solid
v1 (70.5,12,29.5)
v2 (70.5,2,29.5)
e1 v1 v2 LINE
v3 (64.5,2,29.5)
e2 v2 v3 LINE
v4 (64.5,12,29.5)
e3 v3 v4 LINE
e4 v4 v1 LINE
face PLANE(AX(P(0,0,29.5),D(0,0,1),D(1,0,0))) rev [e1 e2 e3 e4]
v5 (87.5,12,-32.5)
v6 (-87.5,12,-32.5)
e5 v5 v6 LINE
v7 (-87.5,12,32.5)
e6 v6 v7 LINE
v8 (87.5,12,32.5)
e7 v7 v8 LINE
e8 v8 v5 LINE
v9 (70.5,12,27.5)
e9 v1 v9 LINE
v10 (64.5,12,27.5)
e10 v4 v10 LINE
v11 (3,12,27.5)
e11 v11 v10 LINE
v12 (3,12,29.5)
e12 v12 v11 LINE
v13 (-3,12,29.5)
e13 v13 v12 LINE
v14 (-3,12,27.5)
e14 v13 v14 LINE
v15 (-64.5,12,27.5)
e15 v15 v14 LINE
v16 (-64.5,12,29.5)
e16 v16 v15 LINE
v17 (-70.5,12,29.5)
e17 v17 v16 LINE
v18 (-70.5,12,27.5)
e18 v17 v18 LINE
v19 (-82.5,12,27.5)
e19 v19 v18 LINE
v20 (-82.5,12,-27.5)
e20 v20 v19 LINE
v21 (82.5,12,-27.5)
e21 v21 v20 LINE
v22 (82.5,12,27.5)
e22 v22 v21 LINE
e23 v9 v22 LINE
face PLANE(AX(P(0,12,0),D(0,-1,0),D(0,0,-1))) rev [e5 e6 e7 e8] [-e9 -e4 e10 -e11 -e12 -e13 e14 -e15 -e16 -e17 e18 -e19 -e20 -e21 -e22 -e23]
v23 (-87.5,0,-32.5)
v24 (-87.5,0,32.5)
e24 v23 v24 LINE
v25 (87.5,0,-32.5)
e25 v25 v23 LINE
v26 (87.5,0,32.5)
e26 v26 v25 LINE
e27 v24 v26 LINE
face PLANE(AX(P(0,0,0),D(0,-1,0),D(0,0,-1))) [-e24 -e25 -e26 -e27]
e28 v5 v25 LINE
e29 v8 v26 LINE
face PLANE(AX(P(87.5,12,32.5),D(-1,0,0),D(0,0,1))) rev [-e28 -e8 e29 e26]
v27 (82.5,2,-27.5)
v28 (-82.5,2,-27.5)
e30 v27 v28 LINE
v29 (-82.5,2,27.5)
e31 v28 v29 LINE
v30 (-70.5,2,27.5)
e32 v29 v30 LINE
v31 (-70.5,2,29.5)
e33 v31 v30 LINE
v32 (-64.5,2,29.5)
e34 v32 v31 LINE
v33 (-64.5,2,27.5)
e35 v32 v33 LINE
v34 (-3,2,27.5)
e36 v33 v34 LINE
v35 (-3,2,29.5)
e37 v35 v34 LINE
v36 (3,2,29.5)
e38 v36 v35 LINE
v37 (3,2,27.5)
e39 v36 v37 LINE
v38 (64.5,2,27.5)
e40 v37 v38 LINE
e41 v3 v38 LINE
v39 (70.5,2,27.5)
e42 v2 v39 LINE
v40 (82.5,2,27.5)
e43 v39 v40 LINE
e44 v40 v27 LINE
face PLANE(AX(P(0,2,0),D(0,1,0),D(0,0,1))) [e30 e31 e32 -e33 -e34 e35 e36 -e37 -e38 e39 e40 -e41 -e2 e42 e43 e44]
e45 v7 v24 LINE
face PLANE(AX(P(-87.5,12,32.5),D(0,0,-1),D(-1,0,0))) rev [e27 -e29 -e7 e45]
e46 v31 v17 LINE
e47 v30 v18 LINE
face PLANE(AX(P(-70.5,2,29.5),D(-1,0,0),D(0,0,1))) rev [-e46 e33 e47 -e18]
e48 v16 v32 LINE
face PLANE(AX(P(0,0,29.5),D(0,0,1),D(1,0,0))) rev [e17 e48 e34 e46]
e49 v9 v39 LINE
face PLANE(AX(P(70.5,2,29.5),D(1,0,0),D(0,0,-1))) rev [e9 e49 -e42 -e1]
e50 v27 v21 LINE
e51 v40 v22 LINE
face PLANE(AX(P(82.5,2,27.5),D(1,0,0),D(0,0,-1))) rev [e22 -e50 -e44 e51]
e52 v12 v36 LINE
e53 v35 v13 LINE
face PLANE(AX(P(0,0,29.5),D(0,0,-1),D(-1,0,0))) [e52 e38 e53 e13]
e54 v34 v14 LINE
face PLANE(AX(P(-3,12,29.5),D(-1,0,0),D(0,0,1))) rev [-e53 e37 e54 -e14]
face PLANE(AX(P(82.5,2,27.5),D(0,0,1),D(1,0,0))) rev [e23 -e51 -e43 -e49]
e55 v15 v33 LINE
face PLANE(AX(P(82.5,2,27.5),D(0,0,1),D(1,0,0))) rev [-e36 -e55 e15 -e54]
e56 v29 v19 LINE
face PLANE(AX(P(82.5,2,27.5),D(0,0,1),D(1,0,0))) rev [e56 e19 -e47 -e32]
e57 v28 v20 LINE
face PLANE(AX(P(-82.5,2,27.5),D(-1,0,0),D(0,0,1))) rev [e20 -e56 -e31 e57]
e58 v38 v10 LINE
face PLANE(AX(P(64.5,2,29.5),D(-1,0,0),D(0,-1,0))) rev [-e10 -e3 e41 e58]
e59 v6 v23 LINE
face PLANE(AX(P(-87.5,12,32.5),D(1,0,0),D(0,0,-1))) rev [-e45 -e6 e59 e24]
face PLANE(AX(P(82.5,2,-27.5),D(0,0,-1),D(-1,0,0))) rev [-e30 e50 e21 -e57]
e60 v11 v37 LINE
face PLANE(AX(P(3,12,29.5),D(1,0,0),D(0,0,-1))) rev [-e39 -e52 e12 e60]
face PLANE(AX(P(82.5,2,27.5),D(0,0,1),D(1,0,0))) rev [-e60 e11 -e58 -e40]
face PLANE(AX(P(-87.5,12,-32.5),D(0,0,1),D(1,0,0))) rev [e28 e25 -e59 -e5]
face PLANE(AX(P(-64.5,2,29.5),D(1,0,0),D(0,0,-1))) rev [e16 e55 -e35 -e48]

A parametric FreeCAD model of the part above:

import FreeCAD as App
import Part
import Sketcher
Q = App.Units.Quantity


def add_polygon(sketch, points):
    """Adds a closed chain of lines whose ends are joined by coincident constraints."""
    first, n = sketch.GeometryCount, len(points)
    for a, b in zip(points, points[1:] + points[:1]):
        sketch.addGeometry(Part.LineSegment(App.Vector(*a, 0), App.Vector(*b, 0)), False)
    for i in range(n):
        sketch.addConstraint(Sketcher.Constraint("Coincident", first + i, 2, first + (i + 1) % n, 1))

doc = App.newDocument("Part")
params = doc.addObject("Spreadsheet::Sheet", "Params")
for row, (alias, value) in enumerate([
    ("sketch1_width", "175 mm"),
    ("sketch1_height", "65 mm"),
    ("pad1_length", "12 mm"),
    ("sketch2_width", "165 mm"),
    ("sketch2_height", "55 mm"),
    ("pocket1_length", "10 mm"),
    ("sketch3_width", "6 mm"),
    ("sketch3_height", "10 mm"),
    ("pocket2_length", "2 mm"),
    ("sketch4_width", "6 mm"),
    ("sketch4_height", "10 mm"),
    ("pocket3_length", "2 mm"),
    ("sketch5_width", "6 mm"),
    ("sketch5_height", "10 mm"),
    ("pocket4_length", "2 mm"),
], start=1):
    params.set(f"A{row}", alias)
    params.set(f"B{row}", "=" + value)
    params.setAlias(f"B{row}", alias)

body = doc.addObject("PartDesign::Body", "Body")

# Sketch on XZ plane
sketch1 = doc.addObject("Sketcher::SketchObject", "Sketch")
body.addObject(sketch1)
sketch1.AttachmentSupport = (doc.XZ_Plane, [""])
sketch1.MapMode = "FlatFace"
add_polygon(sketch1, [(-88, -32), (-88, 32), (88, 32), (88, -32)])  # lines 0-3
sketch1.addConstraint([
    Sketcher.Constraint("Vertical", 0),
    Sketcher.Constraint("Horizontal", 1),
    Sketcher.Constraint("Vertical", 2),
    Sketcher.Constraint("Horizontal", 3),
    Sketcher.Constraint("Symmetric", 0, 2, 2, 2, -1, 1),
    Sketcher.Constraint("DistanceX", 1, 1, 1, 2, Q("175 mm")),
    Sketcher.Constraint("DistanceY", 0, 1, 0, 2, Q("65 mm")),
])
sketch1.setExpression("Constraints[9]", "Params.sketch1_width")
sketch1.setExpression("Constraints[10]", "Params.sketch1_height")
pad1 = doc.addObject("PartDesign::Pad", "Pad")
body.addObject(pad1)
pad1.Profile = sketch1
pad1.setExpression("Length", "Params.pad1_length")
pad1.Reversed = True

# Sketch on XZ plane
sketch2 = doc.addObject("Sketcher::SketchObject", "Sketch001")
body.addObject(sketch2)
sketch2.AttachmentSupport = (doc.XZ_Plane, [""])
sketch2.MapMode = "FlatFace"
sketch2.AttachmentOffset = App.Placement(App.Vector(0, 0, -12), App.Rotation())
add_polygon(sketch2, [(-82, -28), (-82, 28), (82, 28), (82, -28)])  # lines 0-3
sketch2.addConstraint([
    Sketcher.Constraint("Vertical", 0),
    Sketcher.Constraint("Horizontal", 1),
    Sketcher.Constraint("Vertical", 2),
    Sketcher.Constraint("Horizontal", 3),
    Sketcher.Constraint("Symmetric", 0, 2, 2, 2, -1, 1),
    Sketcher.Constraint("DistanceX", 1, 1, 1, 2, Q("165 mm")),
    Sketcher.Constraint("DistanceY", 0, 1, 0, 2, Q("55 mm")),
])
sketch2.setExpression("Constraints[9]", "Params.sketch2_width")
sketch2.setExpression("Constraints[10]", "Params.sketch2_height")
pocket1 = doc.addObject("PartDesign::Pocket", "Pocket")
body.addObject(pocket1)
pocket1.Profile = sketch2
pocket1.setExpression("Length", "Params.pocket1_length")
pocket1.Reversed = True

# Sketch on XY plane
sketch3 = doc.addObject("Sketcher::SketchObject", "Sketch002")
body.addObject(sketch3)
sketch3.AttachmentSupport = (doc.XY_Plane, [""])
sketch3.MapMode = "FlatFace"
sketch3.AttachmentOffset = App.Placement(App.Vector(0, 0, 27.5), App.Rotation())
add_polygon(sketch3, [(3, 12), (3, 2), (-3, 2), (-3, 12)])  # lines 0-3
sketch3.addConstraint([
    Sketcher.Constraint("Vertical", 0),
    Sketcher.Constraint("Horizontal", 1),
    Sketcher.Constraint("Vertical", 2),
    Sketcher.Constraint("Horizontal", 3),
    Sketcher.Constraint("DistanceX", 1, 2, 1, 1, Q("6 mm")),
    Sketcher.Constraint("DistanceY", 0, 2, 0, 1, Q("10 mm")),
    Sketcher.Constraint("DistanceX", -1, 1, 0, 2, Q("3 mm")),
    Sketcher.Constraint("DistanceY", -1, 1, 0, 2, Q("2 mm")),
])
sketch3.setExpression("Constraints[8]", "Params.sketch3_width")
sketch3.setExpression("Constraints[9]", "Params.sketch3_height")
pocket2 = doc.addObject("PartDesign::Pocket", "Pocket001")
body.addObject(pocket2)
pocket2.Profile = sketch3
pocket2.setExpression("Length", "Params.pocket2_length")
pocket2.Reversed = True

# Sketch on XY plane
sketch4 = doc.addObject("Sketcher::SketchObject", "Sketch003")
body.addObject(sketch4)
sketch4.AttachmentSupport = (doc.XY_Plane, [""])
sketch4.MapMode = "FlatFace"
sketch4.AttachmentOffset = App.Placement(App.Vector(0, 0, 27.5), App.Rotation())
add_polygon(sketch4, [(70, 12), (70, 2), (64, 2), (64, 12)])  # lines 0-3
sketch4.addConstraint([
    Sketcher.Constraint("Vertical", 0),
    Sketcher.Constraint("Horizontal", 1),
    Sketcher.Constraint("Vertical", 2),
    Sketcher.Constraint("Horizontal", 3),
    Sketcher.Constraint("DistanceX", 1, 2, 1, 1, Q("6 mm")),
    Sketcher.Constraint("DistanceY", 0, 2, 0, 1, Q("10 mm")),
    Sketcher.Constraint("DistanceY", -1, 1, 0, 2, Q("2 mm")),
    Sketcher.Constraint("DistanceX", -1, 1, 0, 2, Q("70.5 mm")),
])
sketch4.setExpression("Constraints[8]", "Params.sketch4_width")
sketch4.setExpression("Constraints[9]", "Params.sketch4_height")
pocket3 = doc.addObject("PartDesign::Pocket", "Pocket002")
body.addObject(pocket3)
pocket3.Profile = sketch4
pocket3.setExpression("Length", "Params.pocket3_length")
pocket3.Reversed = True

# Sketch on XY plane
sketch5 = doc.addObject("Sketcher::SketchObject", "Sketch004")
body.addObject(sketch5)
sketch5.AttachmentSupport = (doc.XY_Plane, [""])
sketch5.MapMode = "FlatFace"
sketch5.AttachmentOffset = App.Placement(App.Vector(0, 0, 27.5), App.Rotation())
add_polygon(sketch5, [(-64, 12), (-64, 2), (-70, 2), (-70, 12)])  # lines 0-3
sketch5.addConstraint([
    Sketcher.Constraint("Vertical", 0),
    Sketcher.Constraint("Horizontal", 1),
    Sketcher.Constraint("Vertical", 2),
    Sketcher.Constraint("Horizontal", 3),
    Sketcher.Constraint("DistanceX", 1, 2, 1, 1, Q("6 mm")),
    Sketcher.Constraint("DistanceY", 0, 2, 0, 1, Q("10 mm")),
    Sketcher.Constraint("DistanceY", -1, 1, 0, 2, Q("2 mm")),
    Sketcher.Constraint("DistanceX", 0, 2, -1, 1, Q("64.5 mm")),
])
sketch5.setExpression("Constraints[8]", "Params.sketch5_width")
sketch5.setExpression("Constraints[9]", "Params.sketch5_height")
pocket4 = doc.addObject("PartDesign::Pocket", "Pocket003")
body.addObject(pocket4)
pocket4.Profile = sketch5
pocket4.setExpression("Length", "Params.pocket4_length")
pocket4.Reversed = True

doc.recompute()
